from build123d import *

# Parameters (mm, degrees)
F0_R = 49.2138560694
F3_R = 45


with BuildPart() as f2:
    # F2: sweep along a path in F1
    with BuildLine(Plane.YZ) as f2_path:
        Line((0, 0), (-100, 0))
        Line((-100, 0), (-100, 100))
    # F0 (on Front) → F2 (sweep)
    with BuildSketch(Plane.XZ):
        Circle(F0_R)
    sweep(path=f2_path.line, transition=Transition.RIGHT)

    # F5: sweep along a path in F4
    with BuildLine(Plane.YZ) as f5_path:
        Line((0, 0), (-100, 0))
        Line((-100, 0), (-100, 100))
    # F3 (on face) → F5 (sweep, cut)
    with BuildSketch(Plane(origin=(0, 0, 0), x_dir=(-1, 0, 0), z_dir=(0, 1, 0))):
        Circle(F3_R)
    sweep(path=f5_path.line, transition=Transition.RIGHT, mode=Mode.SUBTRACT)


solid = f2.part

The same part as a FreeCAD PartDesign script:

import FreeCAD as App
import Part
import Sketcher
from FreeCAD import Vector
Q = App.Units.Quantity

doc = App.newDocument("Part")
params = doc.addObject("Spreadsheet::Sheet", "Params")
for row, (alias, value) in enumerate([
    ("sketch2_width", "100 mm"),
    ("sketch3_diameter", "90 mm"),
    ("sketch4_width", "100 mm"),
], start=1):
    params.set(f"A{row}", alias)
    params.set(f"B{row}", "=" + value)
    params.setAlias(f"B{row}", alias)

body = doc.addObject("PartDesign::Body", "Body")

sketch1 = body.newObject("Sketcher::SketchObject", "Sketch")
sketch1.AttachmentSupport = (doc.getObject("XZ_Plane"), [""])
sketch1.MapMode = "FlatFace"
sketch1.addGeometry(Part.Circle(Vector(0, 0, 0), Vector(0, 0, 1), 49.213856), False)
sketch1.addConstraint([
    Sketcher.Constraint("Coincident", 0, 3, -1, 1),
    Sketcher.Constraint("Diameter", 0, Q("98.427712 mm")),
])

sketch2 = body.newObject("Sketcher::SketchObject", "Sketch001")
sketch2.AttachmentSupport = (doc.getObject("YZ_Plane"), [""])
sketch2.MapMode = "FlatFace"
sketch2.addGeometry([
    Part.LineSegment(Vector(0, 0, 0), Vector(-100, 0, 0)),
    Part.LineSegment(Vector(-100, 0, 0), Vector(-100, 100, 0)),
], False)
sketch2.addConstraint([
    Sketcher.Constraint("Coincident", 0, 2, 1, 1),
    Sketcher.Constraint("Horizontal", 0),
    Sketcher.Constraint("Vertical", 1),
    Sketcher.Constraint("Coincident", 0, 1, -1, 1),
    Sketcher.Constraint("Equal", 0, 1),
    Sketcher.Constraint("DistanceX", 0, 2, 0, 1, Q("100 mm")),
])
sketch2.setExpression("Constraints[5]", "Params.sketch2_width")
doc.recompute()

additivepipe = body.newObject("PartDesign::AdditivePipe", "AdditivePipe")
additivepipe.Profile = sketch1
additivepipe.Spine = (sketch2, ["Edge1", "Edge2"])
additivepipe.Transition = "Right corner"

sketch3 = body.newObject("Sketcher::SketchObject", "Sketch002")
sketch3.AttachmentSupport = (doc.getObject("XZ_Plane"), [""])
sketch3.MapMode = "FlatFace"
sketch3.addGeometry(Part.Circle(Vector(0, 0, 0), Vector(0, 0, 1), 45), False)
sketch3.addConstraint([
    Sketcher.Constraint("Coincident", 0, 3, -1, 1),
    Sketcher.Constraint("Diameter", 0, Q("90 mm")),
])
sketch3.setExpression("Constraints[1]", "Params.sketch3_diameter")

sketch4 = body.newObject("Sketcher::SketchObject", "Sketch003")
sketch4.AttachmentSupport = (doc.getObject("YZ_Plane"), [""])
sketch4.MapMode = "FlatFace"
sketch4.addGeometry([
    Part.LineSegment(Vector(0, 0, 0), Vector(-100, 0, 0)),
    Part.LineSegment(Vector(-100, 0, 0), Vector(-100, 100, 0)),
], False)
sketch4.addConstraint([
    Sketcher.Constraint("Coincident", 0, 2, 1, 1),
    Sketcher.Constraint("Horizontal", 0),
    Sketcher.Constraint("Vertical", 1),
    Sketcher.Constraint("Coincident", 0, 1, -1, 1),
    Sketcher.Constraint("Equal", 0, 1),
    Sketcher.Constraint("DistanceX", 0, 2, 0, 1, Q("100 mm")),
])
sketch4.setExpression("Constraints[5]", "Params.sketch4_width")
doc.recompute()

subtractivepipe = body.newObject("PartDesign::SubtractivePipe", "SubtractivePipe")
subtractivepipe.Profile = sketch3
subtractivepipe.Spine = (sketch4, ["Edge1", "Edge2"])
subtractivepipe.Transition = "Right corner"

doc.recompute()
